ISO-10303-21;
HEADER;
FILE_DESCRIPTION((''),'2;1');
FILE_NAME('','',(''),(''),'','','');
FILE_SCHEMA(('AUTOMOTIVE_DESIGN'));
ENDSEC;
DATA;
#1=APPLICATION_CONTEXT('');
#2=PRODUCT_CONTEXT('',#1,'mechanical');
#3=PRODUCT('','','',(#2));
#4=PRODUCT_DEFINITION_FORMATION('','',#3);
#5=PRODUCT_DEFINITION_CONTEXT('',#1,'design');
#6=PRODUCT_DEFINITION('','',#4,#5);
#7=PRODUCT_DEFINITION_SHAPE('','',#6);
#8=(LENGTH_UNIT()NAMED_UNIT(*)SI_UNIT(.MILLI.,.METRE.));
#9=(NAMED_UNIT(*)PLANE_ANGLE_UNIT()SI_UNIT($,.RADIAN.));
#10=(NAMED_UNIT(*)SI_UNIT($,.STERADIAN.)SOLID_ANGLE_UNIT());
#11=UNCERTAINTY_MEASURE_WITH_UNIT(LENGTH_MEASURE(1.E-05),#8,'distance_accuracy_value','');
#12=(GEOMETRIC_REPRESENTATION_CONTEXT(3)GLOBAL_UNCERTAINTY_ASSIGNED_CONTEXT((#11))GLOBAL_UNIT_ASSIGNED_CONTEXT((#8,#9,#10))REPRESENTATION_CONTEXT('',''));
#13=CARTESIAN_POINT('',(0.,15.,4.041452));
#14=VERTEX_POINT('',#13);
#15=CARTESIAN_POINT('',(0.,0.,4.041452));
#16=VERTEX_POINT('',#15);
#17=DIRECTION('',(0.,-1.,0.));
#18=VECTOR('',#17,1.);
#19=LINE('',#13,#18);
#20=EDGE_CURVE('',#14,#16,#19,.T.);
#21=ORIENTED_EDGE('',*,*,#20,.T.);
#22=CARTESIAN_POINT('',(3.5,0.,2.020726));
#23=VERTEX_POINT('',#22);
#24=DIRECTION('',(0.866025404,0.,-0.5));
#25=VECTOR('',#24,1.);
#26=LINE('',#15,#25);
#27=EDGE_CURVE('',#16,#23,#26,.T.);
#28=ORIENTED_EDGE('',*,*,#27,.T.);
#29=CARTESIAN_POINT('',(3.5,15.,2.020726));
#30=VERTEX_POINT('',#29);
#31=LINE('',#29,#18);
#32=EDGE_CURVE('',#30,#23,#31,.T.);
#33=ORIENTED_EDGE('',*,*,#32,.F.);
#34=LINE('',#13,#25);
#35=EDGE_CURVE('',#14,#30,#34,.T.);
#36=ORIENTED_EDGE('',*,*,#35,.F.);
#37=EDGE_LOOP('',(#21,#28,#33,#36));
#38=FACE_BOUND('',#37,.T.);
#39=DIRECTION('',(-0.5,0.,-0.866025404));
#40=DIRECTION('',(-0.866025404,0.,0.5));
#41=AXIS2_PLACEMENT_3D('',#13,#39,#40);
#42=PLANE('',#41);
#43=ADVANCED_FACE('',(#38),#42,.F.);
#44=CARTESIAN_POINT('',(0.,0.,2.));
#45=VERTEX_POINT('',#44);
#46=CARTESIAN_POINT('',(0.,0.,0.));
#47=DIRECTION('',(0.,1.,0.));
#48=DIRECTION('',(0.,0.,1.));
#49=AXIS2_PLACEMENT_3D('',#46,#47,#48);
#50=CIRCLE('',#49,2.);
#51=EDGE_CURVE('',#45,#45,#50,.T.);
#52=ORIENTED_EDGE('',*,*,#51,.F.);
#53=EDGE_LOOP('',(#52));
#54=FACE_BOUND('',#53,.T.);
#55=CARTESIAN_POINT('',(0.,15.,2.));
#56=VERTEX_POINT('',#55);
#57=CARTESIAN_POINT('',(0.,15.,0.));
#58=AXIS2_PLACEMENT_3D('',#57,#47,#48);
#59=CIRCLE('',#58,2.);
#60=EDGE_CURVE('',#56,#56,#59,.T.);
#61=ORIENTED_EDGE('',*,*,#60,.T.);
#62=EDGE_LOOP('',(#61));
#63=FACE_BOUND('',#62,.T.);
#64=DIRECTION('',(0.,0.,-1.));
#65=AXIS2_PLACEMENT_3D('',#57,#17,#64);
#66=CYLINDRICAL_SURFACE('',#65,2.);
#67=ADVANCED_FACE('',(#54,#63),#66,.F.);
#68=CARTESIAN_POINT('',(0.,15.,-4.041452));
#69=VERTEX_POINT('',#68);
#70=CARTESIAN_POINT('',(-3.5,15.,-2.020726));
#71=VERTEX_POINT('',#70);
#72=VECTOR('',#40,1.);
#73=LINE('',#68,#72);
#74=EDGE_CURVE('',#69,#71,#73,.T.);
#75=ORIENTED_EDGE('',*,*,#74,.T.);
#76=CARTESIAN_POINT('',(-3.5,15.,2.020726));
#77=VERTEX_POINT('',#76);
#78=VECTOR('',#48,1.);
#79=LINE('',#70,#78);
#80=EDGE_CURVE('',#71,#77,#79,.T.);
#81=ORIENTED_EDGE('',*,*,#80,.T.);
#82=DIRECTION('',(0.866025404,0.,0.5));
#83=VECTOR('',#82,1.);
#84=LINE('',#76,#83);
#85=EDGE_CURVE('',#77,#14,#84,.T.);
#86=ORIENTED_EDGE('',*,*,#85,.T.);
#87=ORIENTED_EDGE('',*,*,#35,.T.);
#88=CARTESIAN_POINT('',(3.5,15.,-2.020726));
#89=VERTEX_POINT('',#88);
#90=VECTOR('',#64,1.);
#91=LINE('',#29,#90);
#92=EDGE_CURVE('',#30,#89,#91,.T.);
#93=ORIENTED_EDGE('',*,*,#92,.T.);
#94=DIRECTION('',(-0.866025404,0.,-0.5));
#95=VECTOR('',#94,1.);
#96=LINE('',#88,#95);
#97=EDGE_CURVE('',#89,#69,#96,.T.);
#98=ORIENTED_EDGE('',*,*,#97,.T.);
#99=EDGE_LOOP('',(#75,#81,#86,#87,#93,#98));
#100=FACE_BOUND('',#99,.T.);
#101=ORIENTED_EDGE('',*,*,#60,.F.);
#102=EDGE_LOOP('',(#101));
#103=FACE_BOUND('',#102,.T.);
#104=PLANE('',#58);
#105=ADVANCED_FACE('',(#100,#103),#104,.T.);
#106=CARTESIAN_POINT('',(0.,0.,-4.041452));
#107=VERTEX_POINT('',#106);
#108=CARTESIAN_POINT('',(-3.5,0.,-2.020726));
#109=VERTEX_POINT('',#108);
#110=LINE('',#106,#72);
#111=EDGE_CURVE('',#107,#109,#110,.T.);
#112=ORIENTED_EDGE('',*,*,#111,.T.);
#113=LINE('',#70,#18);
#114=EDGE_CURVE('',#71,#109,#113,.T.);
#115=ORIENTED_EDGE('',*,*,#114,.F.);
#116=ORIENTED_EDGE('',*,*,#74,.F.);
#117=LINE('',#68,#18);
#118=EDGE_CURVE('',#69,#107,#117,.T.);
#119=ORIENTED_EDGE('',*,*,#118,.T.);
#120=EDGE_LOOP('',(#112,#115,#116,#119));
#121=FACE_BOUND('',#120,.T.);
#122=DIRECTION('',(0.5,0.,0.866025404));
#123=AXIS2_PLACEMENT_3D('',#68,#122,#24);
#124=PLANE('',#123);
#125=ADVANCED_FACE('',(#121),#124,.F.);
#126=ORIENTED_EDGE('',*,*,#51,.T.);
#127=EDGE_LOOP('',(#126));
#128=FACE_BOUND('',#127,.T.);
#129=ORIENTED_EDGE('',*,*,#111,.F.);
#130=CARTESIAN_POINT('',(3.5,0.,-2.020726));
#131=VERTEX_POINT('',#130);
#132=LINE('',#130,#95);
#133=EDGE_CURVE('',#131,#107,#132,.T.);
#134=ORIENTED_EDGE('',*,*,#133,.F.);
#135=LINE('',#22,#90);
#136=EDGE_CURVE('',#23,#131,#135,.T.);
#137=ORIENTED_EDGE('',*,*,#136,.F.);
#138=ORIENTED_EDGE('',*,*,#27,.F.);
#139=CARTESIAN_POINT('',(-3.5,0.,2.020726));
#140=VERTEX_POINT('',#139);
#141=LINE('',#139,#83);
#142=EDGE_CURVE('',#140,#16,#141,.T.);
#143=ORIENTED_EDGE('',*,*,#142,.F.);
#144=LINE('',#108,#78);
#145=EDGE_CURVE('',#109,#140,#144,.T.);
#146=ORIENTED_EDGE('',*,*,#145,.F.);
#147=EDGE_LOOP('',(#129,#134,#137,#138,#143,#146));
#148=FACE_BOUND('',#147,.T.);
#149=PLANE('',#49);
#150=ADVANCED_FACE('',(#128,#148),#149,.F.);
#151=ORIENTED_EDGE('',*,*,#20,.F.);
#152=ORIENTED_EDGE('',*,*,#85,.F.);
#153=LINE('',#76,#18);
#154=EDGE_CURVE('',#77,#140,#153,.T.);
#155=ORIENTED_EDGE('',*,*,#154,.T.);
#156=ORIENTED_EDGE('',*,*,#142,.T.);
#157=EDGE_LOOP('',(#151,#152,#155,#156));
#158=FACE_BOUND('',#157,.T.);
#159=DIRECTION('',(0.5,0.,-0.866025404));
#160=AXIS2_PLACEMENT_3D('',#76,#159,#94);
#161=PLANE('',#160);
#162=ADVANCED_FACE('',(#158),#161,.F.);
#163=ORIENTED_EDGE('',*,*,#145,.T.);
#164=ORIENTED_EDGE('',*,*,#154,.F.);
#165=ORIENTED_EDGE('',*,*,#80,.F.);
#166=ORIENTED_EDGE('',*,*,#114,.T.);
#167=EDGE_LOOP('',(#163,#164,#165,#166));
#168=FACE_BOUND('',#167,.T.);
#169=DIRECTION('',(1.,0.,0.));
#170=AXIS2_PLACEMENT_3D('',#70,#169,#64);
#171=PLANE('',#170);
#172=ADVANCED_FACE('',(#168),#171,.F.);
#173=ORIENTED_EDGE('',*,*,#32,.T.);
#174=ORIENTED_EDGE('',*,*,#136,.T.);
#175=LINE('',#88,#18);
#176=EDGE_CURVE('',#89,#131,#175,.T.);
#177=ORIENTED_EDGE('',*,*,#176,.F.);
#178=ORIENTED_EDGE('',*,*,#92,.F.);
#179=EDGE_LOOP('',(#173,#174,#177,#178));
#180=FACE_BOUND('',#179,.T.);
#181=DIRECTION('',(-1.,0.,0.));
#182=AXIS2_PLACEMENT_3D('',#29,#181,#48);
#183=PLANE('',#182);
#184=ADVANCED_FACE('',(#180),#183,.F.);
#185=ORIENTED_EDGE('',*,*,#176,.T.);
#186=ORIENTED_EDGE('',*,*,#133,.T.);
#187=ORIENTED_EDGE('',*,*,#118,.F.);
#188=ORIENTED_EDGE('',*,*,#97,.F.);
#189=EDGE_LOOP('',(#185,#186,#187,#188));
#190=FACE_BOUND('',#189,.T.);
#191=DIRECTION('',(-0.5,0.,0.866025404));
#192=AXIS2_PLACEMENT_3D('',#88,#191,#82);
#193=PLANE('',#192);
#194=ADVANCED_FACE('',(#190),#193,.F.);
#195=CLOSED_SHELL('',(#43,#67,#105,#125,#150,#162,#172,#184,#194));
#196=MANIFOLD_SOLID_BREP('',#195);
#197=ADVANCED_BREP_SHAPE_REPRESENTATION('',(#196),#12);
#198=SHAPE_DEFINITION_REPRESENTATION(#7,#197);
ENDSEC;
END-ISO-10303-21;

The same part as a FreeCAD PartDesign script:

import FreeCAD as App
import Part
import Sketcher
Q = App.Units.Quantity


def add_polygon(sketch, points):
    """Adds a closed chain of lines whose ends are joined by coincident constraints."""
    first, n = sketch.GeometryCount, len(points)
    for a, b in zip(points, points[1:] + points[:1]):
        sketch.addGeometry(Part.LineSegment(App.Vector(*a, 0), App.Vector(*b, 0)), False)
    for i in range(n):
        sketch.addConstraint(Sketcher.Constraint("Coincident", first + i, 2, first + (i + 1) % n, 1))

doc = App.newDocument("Part")
body = doc.addObject("PartDesign::Body", "Body")

sketch1 = body.newObject("Sketcher::SketchObject", "Sketch")
sketch1.AttachmentSupport = (doc.getObject("XZ_Plane"), [""])
sketch1.MapMode = "FlatFace"
add_polygon(sketch1, [(3.5, -2), (0, -4), (-3.5, -2), (-3.5, 2), (0, 4), (3.5, 2)])
sketch1.addGeometry(Part.Circle(App.Vector(0, 0, 0), App.Vector(0, 0, 1), 2), False)
sketch1.addConstraint(Sketcher.Constraint("Vertical", 2))
sketch1.addConstraint(Sketcher.Constraint("Vertical", 5))
sketch1.addConstraint(Sketcher.Constraint("Coincident", 6, 3, -1, 1))
sketch1.addConstraint(Sketcher.Constraint("Symmetric", 0, 2, 3, 2, -1, 1))
sketch1.addConstraint(Sketcher.Constraint("Symmetric", 1, 2, 4, 2, -1, 1))
sketch1.addConstraint(Sketcher.Constraint("PointOnObject", 0, 2, -2))
sketch1.addConstraint(Sketcher.Constraint("Parallel", 0, 3))
sketch1.addConstraint(Sketcher.Constraint("Horizontal", 2, 2, 4, 2))
sketch1.addConstraint(Sketcher.Constraint("Diameter", 6, Q("4 mm")))
sketch1.addConstraint(Sketcher.Constraint("Angle", 0, Q("-150 deg")))
sketch1.addConstraint(Sketcher.Constraint("DistanceX", 2, 2, 4, 2, Q("7 mm")))
sketch1.addConstraint(Sketcher.Constraint("DistanceY", 2, 1, 2, 2, Q("4.041452 mm")))
pad1 = body.newObject("PartDesign::Pad", "Pad")
pad1.Profile = sketch1
pad1.Length = 15
pad1.Reversed = True

doc.recompute()
